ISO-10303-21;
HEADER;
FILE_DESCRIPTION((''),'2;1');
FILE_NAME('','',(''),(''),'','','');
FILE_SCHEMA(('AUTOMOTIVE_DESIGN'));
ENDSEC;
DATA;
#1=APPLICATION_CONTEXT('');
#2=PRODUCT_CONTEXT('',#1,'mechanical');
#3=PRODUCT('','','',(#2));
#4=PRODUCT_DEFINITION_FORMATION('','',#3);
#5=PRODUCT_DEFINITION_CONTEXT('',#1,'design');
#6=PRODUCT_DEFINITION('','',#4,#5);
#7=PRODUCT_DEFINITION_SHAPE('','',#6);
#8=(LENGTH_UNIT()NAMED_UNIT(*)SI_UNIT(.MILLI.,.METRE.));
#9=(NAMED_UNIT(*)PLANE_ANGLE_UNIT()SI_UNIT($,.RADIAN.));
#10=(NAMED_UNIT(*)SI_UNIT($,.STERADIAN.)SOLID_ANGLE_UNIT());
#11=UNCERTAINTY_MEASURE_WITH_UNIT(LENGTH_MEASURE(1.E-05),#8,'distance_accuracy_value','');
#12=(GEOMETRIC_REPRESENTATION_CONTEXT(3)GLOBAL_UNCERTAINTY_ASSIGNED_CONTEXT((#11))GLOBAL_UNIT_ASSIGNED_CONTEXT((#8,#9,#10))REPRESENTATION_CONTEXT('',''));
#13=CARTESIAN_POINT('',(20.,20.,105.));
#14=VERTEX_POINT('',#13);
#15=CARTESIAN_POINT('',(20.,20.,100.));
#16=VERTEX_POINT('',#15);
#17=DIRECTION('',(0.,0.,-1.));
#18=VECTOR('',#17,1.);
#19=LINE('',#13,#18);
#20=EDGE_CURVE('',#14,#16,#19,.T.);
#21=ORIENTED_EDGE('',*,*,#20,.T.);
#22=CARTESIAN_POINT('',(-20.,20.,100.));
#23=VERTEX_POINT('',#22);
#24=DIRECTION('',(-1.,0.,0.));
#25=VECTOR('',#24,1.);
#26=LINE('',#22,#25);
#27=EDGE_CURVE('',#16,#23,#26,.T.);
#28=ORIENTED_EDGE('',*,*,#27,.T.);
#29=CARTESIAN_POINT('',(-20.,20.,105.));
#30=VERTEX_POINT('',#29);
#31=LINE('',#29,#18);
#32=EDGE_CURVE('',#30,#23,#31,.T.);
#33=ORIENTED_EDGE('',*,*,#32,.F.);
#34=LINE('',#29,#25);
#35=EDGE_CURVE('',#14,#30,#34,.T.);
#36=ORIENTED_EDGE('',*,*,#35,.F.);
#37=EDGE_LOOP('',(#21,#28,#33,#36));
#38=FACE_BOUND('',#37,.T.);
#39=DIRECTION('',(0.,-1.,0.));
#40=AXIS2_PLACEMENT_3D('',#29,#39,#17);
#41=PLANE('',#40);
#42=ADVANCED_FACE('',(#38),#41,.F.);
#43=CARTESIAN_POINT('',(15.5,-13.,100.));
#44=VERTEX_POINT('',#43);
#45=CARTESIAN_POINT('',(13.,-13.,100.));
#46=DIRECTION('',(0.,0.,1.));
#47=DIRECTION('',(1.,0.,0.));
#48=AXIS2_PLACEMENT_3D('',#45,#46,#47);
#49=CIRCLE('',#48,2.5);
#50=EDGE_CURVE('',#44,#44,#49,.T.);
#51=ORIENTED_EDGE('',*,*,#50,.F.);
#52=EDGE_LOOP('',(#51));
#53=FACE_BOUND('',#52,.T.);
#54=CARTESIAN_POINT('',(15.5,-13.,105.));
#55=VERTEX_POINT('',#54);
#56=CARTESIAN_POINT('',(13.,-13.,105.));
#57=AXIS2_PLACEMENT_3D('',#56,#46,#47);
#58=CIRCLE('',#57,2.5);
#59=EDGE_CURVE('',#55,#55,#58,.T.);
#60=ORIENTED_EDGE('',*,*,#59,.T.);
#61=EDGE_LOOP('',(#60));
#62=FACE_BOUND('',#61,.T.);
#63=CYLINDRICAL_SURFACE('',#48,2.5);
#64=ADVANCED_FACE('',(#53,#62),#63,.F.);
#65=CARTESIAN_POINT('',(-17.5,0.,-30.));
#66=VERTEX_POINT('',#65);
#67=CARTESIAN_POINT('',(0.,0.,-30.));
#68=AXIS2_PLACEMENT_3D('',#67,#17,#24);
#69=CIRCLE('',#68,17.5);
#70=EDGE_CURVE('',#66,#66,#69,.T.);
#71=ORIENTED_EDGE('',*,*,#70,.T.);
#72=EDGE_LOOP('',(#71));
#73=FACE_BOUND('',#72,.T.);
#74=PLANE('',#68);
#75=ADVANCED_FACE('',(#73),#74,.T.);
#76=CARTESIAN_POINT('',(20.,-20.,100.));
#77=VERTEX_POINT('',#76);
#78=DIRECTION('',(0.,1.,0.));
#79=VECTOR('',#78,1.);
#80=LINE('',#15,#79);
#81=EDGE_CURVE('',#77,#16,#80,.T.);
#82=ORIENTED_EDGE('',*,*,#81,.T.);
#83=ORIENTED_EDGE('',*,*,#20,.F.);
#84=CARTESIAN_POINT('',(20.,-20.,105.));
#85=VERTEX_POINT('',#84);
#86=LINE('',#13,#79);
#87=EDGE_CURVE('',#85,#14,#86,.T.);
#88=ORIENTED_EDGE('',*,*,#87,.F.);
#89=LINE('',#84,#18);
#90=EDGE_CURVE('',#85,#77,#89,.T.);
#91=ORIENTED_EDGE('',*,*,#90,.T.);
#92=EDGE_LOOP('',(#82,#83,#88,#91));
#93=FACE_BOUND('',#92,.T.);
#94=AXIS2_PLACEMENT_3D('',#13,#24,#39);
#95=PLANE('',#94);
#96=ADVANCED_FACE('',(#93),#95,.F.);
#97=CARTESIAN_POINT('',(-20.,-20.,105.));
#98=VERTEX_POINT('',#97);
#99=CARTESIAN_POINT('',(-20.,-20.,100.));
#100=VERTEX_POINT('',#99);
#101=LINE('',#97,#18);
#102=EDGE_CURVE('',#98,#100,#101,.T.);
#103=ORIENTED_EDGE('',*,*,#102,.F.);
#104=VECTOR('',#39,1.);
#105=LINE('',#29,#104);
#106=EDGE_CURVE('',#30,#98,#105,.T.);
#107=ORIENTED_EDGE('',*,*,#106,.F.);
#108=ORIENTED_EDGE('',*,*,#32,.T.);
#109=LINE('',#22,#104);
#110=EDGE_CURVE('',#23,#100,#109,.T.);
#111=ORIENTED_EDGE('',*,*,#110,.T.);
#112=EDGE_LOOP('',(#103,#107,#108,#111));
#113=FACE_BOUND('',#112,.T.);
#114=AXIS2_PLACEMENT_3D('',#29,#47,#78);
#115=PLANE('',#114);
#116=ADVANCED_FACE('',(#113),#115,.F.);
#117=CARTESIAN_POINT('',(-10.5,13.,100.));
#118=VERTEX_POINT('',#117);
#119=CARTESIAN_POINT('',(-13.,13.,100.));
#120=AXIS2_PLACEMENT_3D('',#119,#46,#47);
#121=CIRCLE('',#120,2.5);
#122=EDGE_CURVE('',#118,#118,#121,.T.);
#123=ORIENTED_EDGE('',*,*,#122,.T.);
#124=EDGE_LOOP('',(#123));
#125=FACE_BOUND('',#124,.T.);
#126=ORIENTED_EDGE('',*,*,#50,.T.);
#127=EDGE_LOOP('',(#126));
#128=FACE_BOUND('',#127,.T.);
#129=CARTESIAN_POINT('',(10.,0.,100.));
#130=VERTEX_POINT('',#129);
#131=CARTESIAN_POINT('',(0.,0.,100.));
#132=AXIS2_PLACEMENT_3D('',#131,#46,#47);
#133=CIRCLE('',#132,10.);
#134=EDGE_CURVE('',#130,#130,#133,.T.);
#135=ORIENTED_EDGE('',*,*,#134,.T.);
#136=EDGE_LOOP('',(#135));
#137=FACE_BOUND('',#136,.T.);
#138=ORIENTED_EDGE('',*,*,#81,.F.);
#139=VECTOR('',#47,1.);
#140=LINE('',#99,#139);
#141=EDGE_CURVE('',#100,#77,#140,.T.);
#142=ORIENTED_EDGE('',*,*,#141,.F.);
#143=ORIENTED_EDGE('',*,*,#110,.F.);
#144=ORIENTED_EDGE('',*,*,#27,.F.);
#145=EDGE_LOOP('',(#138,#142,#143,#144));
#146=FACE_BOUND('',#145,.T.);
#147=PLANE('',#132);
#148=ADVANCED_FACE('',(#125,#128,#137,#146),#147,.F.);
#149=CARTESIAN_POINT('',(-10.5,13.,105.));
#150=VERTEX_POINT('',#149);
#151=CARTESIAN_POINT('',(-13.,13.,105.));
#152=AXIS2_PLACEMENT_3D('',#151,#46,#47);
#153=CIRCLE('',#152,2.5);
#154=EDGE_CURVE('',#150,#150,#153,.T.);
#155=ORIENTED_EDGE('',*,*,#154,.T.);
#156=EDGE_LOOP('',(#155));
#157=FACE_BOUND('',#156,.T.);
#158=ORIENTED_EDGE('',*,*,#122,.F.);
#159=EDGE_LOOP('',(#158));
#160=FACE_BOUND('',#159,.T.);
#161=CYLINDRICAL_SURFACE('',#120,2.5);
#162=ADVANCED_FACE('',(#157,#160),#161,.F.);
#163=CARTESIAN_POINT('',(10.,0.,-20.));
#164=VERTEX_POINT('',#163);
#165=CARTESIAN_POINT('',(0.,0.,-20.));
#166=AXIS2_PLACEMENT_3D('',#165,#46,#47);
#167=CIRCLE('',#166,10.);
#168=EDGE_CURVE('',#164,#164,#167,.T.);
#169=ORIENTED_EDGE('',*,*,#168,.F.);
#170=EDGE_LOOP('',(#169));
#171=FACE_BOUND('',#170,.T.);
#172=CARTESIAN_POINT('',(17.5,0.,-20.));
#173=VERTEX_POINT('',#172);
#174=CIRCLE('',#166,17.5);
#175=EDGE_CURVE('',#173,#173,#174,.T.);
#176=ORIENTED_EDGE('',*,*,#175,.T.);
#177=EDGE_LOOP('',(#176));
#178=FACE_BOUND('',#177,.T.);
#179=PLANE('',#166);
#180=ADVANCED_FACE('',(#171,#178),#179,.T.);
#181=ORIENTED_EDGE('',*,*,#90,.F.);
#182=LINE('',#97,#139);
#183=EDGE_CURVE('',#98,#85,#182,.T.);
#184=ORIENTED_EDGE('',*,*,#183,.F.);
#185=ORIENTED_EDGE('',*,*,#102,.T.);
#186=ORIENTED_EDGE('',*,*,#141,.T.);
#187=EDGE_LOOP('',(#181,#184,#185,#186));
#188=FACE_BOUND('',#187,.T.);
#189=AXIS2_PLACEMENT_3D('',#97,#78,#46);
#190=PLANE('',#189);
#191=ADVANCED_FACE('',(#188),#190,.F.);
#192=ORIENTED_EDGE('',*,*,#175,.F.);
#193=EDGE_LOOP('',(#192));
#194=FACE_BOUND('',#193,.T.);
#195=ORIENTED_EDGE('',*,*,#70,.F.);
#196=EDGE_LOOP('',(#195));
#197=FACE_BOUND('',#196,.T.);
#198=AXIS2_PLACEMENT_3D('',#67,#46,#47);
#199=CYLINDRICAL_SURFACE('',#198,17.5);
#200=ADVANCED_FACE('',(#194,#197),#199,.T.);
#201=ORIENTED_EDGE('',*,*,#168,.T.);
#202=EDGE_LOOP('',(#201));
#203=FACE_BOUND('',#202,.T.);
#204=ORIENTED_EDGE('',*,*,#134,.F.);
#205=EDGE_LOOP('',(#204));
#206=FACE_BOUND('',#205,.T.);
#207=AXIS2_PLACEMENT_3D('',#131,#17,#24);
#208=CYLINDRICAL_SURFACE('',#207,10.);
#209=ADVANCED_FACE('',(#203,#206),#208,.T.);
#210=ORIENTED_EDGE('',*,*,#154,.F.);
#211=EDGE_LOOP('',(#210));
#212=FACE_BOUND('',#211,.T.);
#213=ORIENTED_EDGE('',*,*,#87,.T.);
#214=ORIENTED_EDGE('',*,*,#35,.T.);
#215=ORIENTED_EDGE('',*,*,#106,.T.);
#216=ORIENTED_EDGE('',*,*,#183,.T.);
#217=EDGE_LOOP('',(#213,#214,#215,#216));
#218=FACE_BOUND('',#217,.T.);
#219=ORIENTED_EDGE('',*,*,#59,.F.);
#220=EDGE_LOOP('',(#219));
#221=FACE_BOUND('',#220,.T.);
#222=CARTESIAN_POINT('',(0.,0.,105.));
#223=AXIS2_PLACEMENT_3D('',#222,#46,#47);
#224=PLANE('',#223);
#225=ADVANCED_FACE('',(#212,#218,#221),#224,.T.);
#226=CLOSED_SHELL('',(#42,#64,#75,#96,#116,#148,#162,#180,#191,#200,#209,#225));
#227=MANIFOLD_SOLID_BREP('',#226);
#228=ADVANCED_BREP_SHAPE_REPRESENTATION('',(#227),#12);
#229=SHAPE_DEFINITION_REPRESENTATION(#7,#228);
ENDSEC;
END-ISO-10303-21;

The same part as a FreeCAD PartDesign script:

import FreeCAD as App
import Part
import Sketcher


def add_polygon(sketch, points):
    """Adds a closed chain of lines whose ends are joined by coincident constraints."""
    first, n = sketch.GeometryCount, len(points)
    for a, b in zip(points, points[1:] + points[:1]):
        sketch.addGeometry(Part.LineSegment(App.Vector(*a, 0), App.Vector(*b, 0)), False)
    for i in range(n):
        sketch.addConstraint(Sketcher.Constraint("Coincident", first + i, 2, first + (i + 1) % n, 1))

doc = App.newDocument("Part")
body = doc.addObject("PartDesign::Body", "Body")

# Sketch on XY plane
sketch1 = body.newObject("Sketcher::SketchObject", "Sketch")
sketch1.AttachmentSupport = (doc.getObject("XY_Plane"), [""])
sketch1.MapMode = "FlatFace"
sketch1.addGeometry(Part.Circle(App.Vector(0, 0, 0), App.Vector(0, 0, 1), 10), False)
sketch1.addConstraint([
    Sketcher.Constraint("Coincident", 0, 3, -1, 1),
    Sketcher.Constraint("Diameter", 0, 20.0),
])
pad1 = body.newObject("PartDesign::Pad", "Pad")
pad1.Profile = sketch1
pad1.Length = 100

# Sketch on XY plane
sketch2 = body.newObject("Sketcher::SketchObject", "Sketch001")
sketch2.AttachmentSupport = (doc.getObject("XY_Plane"), [""])
sketch2.MapMode = "FlatFace"
sketch2.addGeometry(Part.Circle(App.Vector(0, 0, 0), App.Vector(0, 0, 1), 18), False)
sketch2.addConstraint([
    Sketcher.Constraint("Coincident", 0, 3, -1, 1),
    Sketcher.Constraint("Diameter", 0, 35.0),
])
pad2 = body.newObject("PartDesign::Pad", "Pad001")
pad2.Profile = sketch2
pad2.Length = 30
pad2.Reversed = True

# Sketch on XY plane
sketch3 = body.newObject("Sketcher::SketchObject", "Sketch002")
sketch3.AttachmentSupport = (doc.getObject("XY_Plane"), [""])
sketch3.MapMode = "FlatFace"
sketch3.AttachmentOffset = App.Placement(App.Vector(0, 0, 100), App.Rotation())
add_polygon(sketch3, [(-20, 20), (-20, -20), (20, -20), (20, 20)])  # lines 0-3
sketch3.addConstraint([
    Sketcher.Constraint("Vertical", 0),
    Sketcher.Constraint("Horizontal", 1),
    Sketcher.Constraint("Vertical", 2),
    Sketcher.Constraint("Horizontal", 3),
    Sketcher.Constraint("Symmetric", 0, 2, 2, 2, -1, 1),
    Sketcher.Constraint("Equal", 3, 0),
    Sketcher.Constraint("DistanceX", 1, 1, 1, 2, 40.0),
])
pad3 = body.newObject("PartDesign::Pad", "Pad002")
pad3.Profile = sketch3
pad3.Length = 5

# Sketch on XY plane
sketch4 = body.newObject("Sketcher::SketchObject", "Sketch003")
sketch4.AttachmentSupport = (doc.getObject("XY_Plane"), [""])
sketch4.MapMode = "FlatFace"
sketch4.AttachmentOffset = App.Placement(App.Vector(0, 0, 105), App.Rotation())
sketch4.addGeometry([
    Part.Circle(App.Vector(-13, 13, 0), App.Vector(0, 0, 1), 2.5),
    Part.Circle(App.Vector(13, -13, 0), App.Vector(0, 0, 1), 2.5),
], False)
sketch4.addConstraint([
    Sketcher.Constraint("Equal", 0, 1),
    Sketcher.Constraint("Symmetric", 0, 3, 1, 3, -1, 1),
    Sketcher.Constraint("Diameter", 0, 5.0),
    Sketcher.Constraint("DistanceX", 0, 3, -1, 1, 13.0),
    Sketcher.Constraint("DistanceY", -1, 1, 0, 3, 13.0),
])
pocket1 = body.newObject("PartDesign::Pocket", "Pocket")
pocket1.Profile = sketch4
pocket1.Length = 5

# Sketch on XY plane
sketch5 = body.newObject("Sketcher::SketchObject", "Sketch004")
sketch5.AttachmentSupport = (doc.getObject("XY_Plane"), [""])
sketch5.MapMode = "FlatFace"
add_polygon(sketch5, [(-36, 36), (-36, -36), (36, -36), (36, 36)])  # lines 0-3
sketch5.addGeometry(Part.Circle(App.Vector(0, 0, 0), App.Vector(0, 0, 1), 10), False)  # 4
sketch5.addConstraint([
    Sketcher.Constraint("Vertical", 0),
    Sketcher.Constraint("Horizontal", 1),
    Sketcher.Constraint("Vertical", 2),
    Sketcher.Constraint("Horizontal", 3),
    Sketcher.Constraint("Coincident", 4, 3, -1, 1),
    Sketcher.Constraint("Symmetric", 0, 2, 2, 2, -1, 1),
    Sketcher.Constraint("Equal", 3, 0),
    Sketcher.Constraint("Diameter", 4, 20.0),
    Sketcher.Constraint("DistanceX", 1, 1, 1, 2, 71.274),
])
pocket2 = body.newObject("PartDesign::Pocket", "Pocket001")
pocket2.Profile = sketch5
pocket2.Length = 20

doc.recompute()
